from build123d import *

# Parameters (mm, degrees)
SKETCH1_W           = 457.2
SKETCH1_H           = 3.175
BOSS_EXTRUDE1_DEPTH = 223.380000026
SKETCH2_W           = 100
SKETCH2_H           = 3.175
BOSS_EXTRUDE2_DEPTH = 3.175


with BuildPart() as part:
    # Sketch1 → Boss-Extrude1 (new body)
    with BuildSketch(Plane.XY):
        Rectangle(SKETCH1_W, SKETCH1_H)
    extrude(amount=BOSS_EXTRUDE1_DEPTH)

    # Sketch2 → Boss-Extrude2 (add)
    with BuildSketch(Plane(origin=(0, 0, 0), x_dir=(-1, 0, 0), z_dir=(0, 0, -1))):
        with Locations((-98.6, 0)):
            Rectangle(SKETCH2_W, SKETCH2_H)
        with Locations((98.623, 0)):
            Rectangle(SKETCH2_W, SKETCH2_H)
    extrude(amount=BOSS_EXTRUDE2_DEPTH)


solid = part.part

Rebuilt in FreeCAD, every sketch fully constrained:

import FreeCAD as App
import Part
import Sketcher
Q = App.Units.Quantity

doc = App.newDocument("Part")
body = doc.addObject("PartDesign::Body", "Body")

sketch1 = doc.addObject("Sketcher::SketchObject", "Sketch")
body.addObject(sketch1)
sketch1.AttachmentSupport = (doc.XY_Plane, [""])
sketch1.MapMode = "FlatFace"
sketch1.addGeometry([
    Part.LineSegment(App.Vector(-228.6, 1.5875, 0), App.Vector(-228.6, -1.5875, 0)),
    Part.LineSegment(App.Vector(-228.6, -1.5875, 0), App.Vector(228.6, -1.5875, 0)),
    Part.LineSegment(App.Vector(228.6, -1.5875, 0), App.Vector(228.6, 1.5875, 0)),
    Part.LineSegment(App.Vector(228.6, 1.5875, 0), App.Vector(-228.6, 1.5875, 0)),
], False)
sketch1.addConstraint([
    Sketcher.Constraint("Coincident", 0, 2, 1, 1),
    Sketcher.Constraint("Coincident", 1, 2, 2, 1),
    Sketcher.Constraint("Coincident", 2, 2, 3, 1),
    Sketcher.Constraint("Coincident", 3, 2, 0, 1),
    Sketcher.Constraint("Vertical", 0),
    Sketcher.Constraint("Horizontal", 1),
    Sketcher.Constraint("Vertical", 2),
    Sketcher.Constraint("Horizontal", 3),
    Sketcher.Constraint("Symmetric", 0, 2, 2, 2, -1, 1),
    Sketcher.Constraint("DistanceX", 1, 1, 1, 2, Q("18 in")),
    Sketcher.Constraint("DistanceY", 0, 2, 0, 1, Q("0.125 in")),
])
pad1 = doc.addObject("PartDesign::Pad", "Pad")
body.addObject(pad1)
pad1.Profile = sketch1
pad1.Length = 223.38

sketch2 = doc.addObject("Sketcher::SketchObject", "Sketch001")
body.addObject(sketch2)
sketch2.AttachmentSupport = (doc.XY_Plane, [""])
sketch2.MapMode = "FlatFace"
sketch2.addGeometry([
    Part.LineSegment(App.Vector(148.6, 1.5875, 0), App.Vector(148.6, -1.5875, 0)),
    Part.LineSegment(App.Vector(148.6, -1.5875, 0), App.Vector(48.6, -1.5875, 0)),
    Part.LineSegment(App.Vector(48.6, -1.5875, 0), App.Vector(48.6, 1.5875, 0)),
    Part.LineSegment(App.Vector(48.6, 1.5875, 0), App.Vector(148.6, 1.5875, 0)),
    Part.LineSegment(App.Vector(-48.623, 1.5875, 0), App.Vector(-48.623, -1.5875, 0)),
    Part.LineSegment(App.Vector(-48.623, -1.5875, 0), App.Vector(-148.623, -1.5875, 0)),
    Part.LineSegment(App.Vector(-148.623, -1.5875, 0), App.Vector(-148.623, 1.5875, 0)),
    Part.LineSegment(App.Vector(-148.623, 1.5875, 0), App.Vector(-48.623, 1.5875, 0)),
], False)
sketch2.addConstraint([
    Sketcher.Constraint("Coincident", 0, 2, 1, 1),
    Sketcher.Constraint("Coincident", 1, 2, 2, 1),
    Sketcher.Constraint("Coincident", 2, 2, 3, 1),
    Sketcher.Constraint("Coincident", 3, 2, 0, 1),
    Sketcher.Constraint("Coincident", 4, 2, 5, 1),
    Sketcher.Constraint("Coincident", 5, 2, 6, 1),
    Sketcher.Constraint("Coincident", 6, 2, 7, 1),
    Sketcher.Constraint("Coincident", 7, 2, 4, 1),
    Sketcher.Constraint("Vertical", 0),
    Sketcher.Constraint("Horizontal", 1),
    Sketcher.Constraint("Vertical", 2),
    Sketcher.Constraint("Horizontal", 3),
    Sketcher.Constraint("Vertical", 4),
    Sketcher.Constraint("Horizontal", 5),
    Sketcher.Constraint("Vertical", 6),
    Sketcher.Constraint("Horizontal", 7),
    Sketcher.Constraint("Horizontal", 1, 2, 4, 2),
    Sketcher.Constraint("Horizontal", 3, 2, 6, 2),
    Sketcher.Constraint("Equal", 3, 5),
    Sketcher.Constraint("DistanceY", 0, 2, 0, 1, Q("0.125 in")),
    Sketcher.Constraint("DistanceY", 0, 2, -1, 1, Q("0.0625 in")),
    Sketcher.Constraint("DistanceX", 1, 2, 1, 1, 100.0),
    Sketcher.Constraint("DistanceX", -1, 1, 0, 2, 148.6),
    Sketcher.Constraint("DistanceX", 4, 2, -1, 1, 48.623),
])
pad2 = doc.addObject("PartDesign::Pad", "Pad001")
body.addObject(pad2)
pad2.Profile = sketch2
pad2.Length = Q("0.125 in")
pad2.Reversed = True

doc.recompute()
